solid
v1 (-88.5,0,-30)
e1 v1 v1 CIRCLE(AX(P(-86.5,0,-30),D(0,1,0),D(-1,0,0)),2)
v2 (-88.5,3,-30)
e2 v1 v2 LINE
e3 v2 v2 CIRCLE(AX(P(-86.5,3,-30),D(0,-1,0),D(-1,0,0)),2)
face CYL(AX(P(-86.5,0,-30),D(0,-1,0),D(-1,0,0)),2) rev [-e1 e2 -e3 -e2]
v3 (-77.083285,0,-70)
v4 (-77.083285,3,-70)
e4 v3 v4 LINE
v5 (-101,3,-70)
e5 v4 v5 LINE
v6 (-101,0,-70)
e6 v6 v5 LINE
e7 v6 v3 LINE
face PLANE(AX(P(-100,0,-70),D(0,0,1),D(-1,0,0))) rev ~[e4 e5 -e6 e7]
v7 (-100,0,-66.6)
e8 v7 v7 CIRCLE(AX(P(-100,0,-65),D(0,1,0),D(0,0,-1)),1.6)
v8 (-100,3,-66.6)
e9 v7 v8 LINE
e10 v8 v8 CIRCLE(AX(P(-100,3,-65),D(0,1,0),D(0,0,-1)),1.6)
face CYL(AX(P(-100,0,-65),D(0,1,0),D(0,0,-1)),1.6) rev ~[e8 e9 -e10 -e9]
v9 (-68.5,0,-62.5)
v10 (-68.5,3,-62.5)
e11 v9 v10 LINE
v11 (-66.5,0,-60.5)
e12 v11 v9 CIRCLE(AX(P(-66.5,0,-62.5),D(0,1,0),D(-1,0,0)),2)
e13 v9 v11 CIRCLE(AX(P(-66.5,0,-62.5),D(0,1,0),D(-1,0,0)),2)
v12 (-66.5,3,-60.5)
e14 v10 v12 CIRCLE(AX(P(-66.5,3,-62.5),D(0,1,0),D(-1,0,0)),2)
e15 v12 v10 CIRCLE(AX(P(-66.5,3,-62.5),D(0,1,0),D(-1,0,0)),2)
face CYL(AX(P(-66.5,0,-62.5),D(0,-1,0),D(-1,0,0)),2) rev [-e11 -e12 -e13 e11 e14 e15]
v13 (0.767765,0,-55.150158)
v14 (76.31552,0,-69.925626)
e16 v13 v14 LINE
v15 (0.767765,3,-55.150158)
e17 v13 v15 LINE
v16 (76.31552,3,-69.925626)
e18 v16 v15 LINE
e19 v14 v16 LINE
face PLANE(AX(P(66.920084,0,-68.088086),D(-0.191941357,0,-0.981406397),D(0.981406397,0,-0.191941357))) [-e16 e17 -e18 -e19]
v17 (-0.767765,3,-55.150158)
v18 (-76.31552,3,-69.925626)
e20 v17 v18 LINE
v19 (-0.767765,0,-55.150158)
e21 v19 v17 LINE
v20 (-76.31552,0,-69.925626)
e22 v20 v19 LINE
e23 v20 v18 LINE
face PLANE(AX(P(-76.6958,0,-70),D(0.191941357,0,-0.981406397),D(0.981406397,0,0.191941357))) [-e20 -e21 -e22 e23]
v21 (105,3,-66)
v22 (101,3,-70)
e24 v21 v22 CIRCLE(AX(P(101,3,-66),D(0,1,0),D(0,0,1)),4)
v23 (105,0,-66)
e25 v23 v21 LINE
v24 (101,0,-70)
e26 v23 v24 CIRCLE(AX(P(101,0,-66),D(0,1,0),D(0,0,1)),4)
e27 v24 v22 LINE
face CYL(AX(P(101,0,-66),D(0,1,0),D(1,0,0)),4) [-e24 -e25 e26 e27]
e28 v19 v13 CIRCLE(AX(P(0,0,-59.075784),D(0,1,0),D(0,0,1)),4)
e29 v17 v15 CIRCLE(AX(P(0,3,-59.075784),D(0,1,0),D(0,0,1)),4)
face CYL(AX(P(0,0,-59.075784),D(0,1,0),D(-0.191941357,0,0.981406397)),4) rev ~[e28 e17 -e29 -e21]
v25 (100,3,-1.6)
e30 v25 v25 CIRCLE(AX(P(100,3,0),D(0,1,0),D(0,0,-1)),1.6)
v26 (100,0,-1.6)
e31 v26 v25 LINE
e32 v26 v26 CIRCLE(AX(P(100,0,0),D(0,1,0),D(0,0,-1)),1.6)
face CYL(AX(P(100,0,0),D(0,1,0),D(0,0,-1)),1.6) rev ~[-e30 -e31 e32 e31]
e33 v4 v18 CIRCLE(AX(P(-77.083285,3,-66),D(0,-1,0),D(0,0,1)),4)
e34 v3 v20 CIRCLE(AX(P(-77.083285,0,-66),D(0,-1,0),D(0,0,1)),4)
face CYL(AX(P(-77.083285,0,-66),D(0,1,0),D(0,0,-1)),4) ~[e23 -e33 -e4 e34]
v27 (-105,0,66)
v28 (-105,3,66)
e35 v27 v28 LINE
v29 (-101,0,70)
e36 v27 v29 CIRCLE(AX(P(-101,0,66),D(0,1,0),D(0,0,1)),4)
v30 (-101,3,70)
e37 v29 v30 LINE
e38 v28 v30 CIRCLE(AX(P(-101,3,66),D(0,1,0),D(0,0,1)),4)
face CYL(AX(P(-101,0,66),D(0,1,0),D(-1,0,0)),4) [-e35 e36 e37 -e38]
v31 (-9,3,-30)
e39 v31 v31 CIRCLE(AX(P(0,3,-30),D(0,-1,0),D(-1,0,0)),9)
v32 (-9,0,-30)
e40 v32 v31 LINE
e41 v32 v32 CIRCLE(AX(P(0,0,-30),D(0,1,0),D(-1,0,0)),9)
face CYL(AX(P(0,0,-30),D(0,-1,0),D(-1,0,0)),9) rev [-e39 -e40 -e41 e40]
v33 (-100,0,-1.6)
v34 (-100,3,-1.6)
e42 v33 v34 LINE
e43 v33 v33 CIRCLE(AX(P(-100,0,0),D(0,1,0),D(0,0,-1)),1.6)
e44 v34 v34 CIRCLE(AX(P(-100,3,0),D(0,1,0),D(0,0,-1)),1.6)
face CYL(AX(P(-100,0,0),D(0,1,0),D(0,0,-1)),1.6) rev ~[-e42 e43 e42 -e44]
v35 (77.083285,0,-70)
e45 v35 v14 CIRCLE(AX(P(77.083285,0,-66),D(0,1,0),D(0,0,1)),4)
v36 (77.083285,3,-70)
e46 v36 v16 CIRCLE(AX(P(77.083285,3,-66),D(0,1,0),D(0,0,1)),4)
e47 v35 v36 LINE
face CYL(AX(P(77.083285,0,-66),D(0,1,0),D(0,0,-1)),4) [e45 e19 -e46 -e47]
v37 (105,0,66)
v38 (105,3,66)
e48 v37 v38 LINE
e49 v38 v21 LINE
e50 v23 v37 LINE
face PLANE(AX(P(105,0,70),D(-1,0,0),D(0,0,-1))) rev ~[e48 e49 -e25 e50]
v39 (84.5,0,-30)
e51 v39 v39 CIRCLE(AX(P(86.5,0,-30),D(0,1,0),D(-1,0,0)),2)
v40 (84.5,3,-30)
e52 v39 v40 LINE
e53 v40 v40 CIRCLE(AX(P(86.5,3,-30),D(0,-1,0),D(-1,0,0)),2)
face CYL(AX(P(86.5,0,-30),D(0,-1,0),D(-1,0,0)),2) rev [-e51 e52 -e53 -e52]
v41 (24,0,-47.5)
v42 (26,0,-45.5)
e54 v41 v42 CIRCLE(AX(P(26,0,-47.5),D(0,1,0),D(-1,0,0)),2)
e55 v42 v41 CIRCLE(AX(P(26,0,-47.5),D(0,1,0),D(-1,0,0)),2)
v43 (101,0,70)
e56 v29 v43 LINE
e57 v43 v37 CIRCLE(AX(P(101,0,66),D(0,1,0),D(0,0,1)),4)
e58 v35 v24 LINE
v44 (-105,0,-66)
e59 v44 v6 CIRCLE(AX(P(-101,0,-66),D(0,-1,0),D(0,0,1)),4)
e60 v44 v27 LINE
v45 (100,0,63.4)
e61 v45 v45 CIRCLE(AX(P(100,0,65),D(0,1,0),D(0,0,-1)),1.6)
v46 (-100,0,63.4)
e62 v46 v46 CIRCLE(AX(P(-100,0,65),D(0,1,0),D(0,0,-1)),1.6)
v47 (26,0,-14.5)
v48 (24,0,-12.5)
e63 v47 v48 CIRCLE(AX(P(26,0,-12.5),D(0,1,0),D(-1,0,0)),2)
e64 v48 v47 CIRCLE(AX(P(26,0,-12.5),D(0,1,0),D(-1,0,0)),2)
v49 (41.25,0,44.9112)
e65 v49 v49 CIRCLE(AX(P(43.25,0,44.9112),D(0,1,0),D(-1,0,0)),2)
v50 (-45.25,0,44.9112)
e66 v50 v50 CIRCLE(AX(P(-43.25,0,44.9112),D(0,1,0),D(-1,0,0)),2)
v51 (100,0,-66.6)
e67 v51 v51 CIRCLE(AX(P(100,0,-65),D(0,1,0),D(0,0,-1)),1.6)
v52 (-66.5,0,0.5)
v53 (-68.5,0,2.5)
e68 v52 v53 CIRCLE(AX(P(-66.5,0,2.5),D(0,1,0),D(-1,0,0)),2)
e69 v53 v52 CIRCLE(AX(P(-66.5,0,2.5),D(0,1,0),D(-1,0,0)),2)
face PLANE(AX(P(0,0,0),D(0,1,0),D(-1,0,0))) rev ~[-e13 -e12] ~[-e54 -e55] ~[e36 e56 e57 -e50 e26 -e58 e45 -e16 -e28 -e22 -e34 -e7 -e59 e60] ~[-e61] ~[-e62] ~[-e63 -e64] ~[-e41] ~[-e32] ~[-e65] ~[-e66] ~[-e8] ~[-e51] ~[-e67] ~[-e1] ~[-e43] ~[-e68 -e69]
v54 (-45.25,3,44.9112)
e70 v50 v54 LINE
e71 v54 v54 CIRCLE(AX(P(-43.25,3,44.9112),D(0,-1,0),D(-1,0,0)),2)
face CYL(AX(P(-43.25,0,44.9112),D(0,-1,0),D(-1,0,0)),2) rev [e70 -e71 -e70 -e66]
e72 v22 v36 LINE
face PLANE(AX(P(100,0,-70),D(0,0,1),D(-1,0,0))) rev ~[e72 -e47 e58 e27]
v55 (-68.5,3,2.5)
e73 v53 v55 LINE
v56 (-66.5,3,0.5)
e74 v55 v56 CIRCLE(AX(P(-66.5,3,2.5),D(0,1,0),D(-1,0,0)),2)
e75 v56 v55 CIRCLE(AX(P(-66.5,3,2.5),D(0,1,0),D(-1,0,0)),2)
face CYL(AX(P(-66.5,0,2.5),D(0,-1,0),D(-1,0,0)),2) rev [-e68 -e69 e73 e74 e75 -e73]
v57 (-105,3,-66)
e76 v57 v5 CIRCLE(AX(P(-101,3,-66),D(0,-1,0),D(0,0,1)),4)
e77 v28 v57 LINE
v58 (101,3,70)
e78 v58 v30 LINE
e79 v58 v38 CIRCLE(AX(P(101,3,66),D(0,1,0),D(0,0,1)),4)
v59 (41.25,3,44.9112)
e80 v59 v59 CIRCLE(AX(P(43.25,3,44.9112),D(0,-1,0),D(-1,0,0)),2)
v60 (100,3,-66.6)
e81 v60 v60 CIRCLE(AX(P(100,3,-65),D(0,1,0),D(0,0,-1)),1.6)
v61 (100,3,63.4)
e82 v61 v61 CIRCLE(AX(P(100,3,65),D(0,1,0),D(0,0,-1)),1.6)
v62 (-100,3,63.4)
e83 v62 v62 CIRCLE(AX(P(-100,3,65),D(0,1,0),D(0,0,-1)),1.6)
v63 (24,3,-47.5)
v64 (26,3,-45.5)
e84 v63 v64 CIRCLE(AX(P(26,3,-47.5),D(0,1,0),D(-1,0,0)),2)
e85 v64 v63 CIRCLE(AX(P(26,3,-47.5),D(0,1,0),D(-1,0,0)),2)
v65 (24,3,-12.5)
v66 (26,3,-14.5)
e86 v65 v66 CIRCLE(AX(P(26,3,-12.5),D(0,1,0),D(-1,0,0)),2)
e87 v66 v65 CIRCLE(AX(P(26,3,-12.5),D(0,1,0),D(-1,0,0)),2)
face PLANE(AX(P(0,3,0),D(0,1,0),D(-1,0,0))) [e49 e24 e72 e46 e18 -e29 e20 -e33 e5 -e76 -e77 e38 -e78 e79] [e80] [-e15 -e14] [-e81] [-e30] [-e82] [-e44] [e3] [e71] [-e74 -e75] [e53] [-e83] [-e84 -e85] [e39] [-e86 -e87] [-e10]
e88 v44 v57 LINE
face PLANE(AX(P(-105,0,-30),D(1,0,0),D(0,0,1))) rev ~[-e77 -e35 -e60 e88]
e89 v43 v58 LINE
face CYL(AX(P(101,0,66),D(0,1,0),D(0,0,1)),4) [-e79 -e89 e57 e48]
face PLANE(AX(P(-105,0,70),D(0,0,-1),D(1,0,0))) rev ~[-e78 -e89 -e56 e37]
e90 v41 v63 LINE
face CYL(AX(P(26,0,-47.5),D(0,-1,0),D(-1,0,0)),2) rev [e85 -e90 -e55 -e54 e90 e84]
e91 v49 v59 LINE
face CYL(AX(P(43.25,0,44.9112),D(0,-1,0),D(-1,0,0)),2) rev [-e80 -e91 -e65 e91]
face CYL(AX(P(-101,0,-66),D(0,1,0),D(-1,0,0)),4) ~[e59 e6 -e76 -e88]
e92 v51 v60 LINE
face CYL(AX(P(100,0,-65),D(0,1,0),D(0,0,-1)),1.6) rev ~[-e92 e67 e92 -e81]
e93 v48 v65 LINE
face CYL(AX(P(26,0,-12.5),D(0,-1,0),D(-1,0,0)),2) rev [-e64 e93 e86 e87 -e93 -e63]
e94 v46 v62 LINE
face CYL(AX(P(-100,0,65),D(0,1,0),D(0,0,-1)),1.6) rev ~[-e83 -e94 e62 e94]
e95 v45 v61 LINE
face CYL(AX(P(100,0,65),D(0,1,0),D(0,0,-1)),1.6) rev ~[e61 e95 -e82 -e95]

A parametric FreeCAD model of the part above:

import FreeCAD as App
import Part
import Sketcher

V = App.Vector


def edges_at(feature, points):
    """Names of the edges that pass closest to the given points."""
    edges = feature.Shape.Edges
    near = lambda p: min(range(len(edges)), key=lambda i: edges[i].distToShape(Part.Vertex(*p))[0])
    return sorted({f"Edge{near(p) + 1}" for p in points})

doc = App.newDocument("Part")
body = doc.addObject("PartDesign::Body", "Body")

sketch1 = body.newObject("Sketcher::SketchObject", "Sketch")
sketch1.AttachmentSupport = (doc.getObject("XZ_Plane"), [""])
sketch1.MapMode = "FlatFace"
sketch1.addGeometry(Part.LineSegment(V(-105, 70, 0), V(105, 70, 0)), False)
sketch1.addGeometry(Part.LineSegment(V(105, 70, 0), V(105, -70, 0)), False)
sketch1.addGeometry(Part.LineSegment(V(105, -70, 0), V(76.7, -70, 0)), False)
sketch1.addGeometry(Part.LineSegment(V(76.7, -70, 0), V(0, -55, 0)), False)
sketch1.addGeometry(Part.LineSegment(V(0, -55, 0), V(-76.7, -70, 0)), False)
sketch1.addGeometry(Part.LineSegment(V(-76.7, -70, 0), V(-105, -70, 0)), False)
sketch1.addGeometry(Part.LineSegment(V(-105, -70, 0), V(-105, 70, 0)), False)
sketch1.addGeometry(Part.Circle(V(-86.5, -30, 0), V(0, 0, 1), 2), False)
sketch1.addGeometry(Part.Circle(V(-43.2, 44.9, 0), V(0, 0, 1), 2), False)
sketch1.addGeometry(Part.Circle(V(43.2, 44.9, 0), V(0, 0, 1), 2), False)
sketch1.addGeometry(Part.Circle(V(86.5, -30, 0), V(0, 0, 1), 2), False)
sketch1.addGeometry(Part.Circle(V(0, -30, 0), V(0, 0, 1), 9), False)
sketch1.addGeometry(Part.Circle(V(26, -12.5, 0), V(0, 0, 1), 2), False)
sketch1.addGeometry(Part.Circle(V(-66.5, 2.5, 0), V(0, 0, 1), 2), False)
sketch1.addGeometry(Part.Circle(V(26, -47.5, 0), V(0, 0, 1), 2), False)
sketch1.addGeometry(Part.Circle(V(-66.5, -62.5, 0), V(0, 0, 1), 2), False)
sketch1.addConstraint(Sketcher.Constraint("Coincident", 0, 2, 1, 1))
sketch1.addConstraint(Sketcher.Constraint("Coincident", 1, 2, 2, 1))
sketch1.addConstraint(Sketcher.Constraint("Coincident", 2, 2, 3, 1))
sketch1.addConstraint(Sketcher.Constraint("Coincident", 3, 2, 4, 1))
sketch1.addConstraint(Sketcher.Constraint("Coincident", 4, 2, 5, 1))
sketch1.addConstraint(Sketcher.Constraint("Coincident", 5, 2, 6, 1))
sketch1.addConstraint(Sketcher.Constraint("Coincident", 6, 2, 0, 1))
sketch1.addConstraint(Sketcher.Constraint("Horizontal", 0))
sketch1.addConstraint(Sketcher.Constraint("Vertical", 1))
sketch1.addConstraint(Sketcher.Constraint("Horizontal", 2))
sketch1.addConstraint(Sketcher.Constraint("Horizontal", 5))
sketch1.addConstraint(Sketcher.Constraint("Vertical", 6))
sketch1.addConstraint(Sketcher.Constraint("Equal", 7, 8))
sketch1.addConstraint(Sketcher.Constraint("Equal", 8, 9))
sketch1.addConstraint(Sketcher.Constraint("Equal", 9, 10))
sketch1.addConstraint(Sketcher.Constraint("Equal", 10, 12))
sketch1.addConstraint(Sketcher.Constraint("Equal", 12, 13))
sketch1.addConstraint(Sketcher.Constraint("Equal", 13, 14))
sketch1.addConstraint(Sketcher.Constraint("Equal", 14, 15))
sketch1.addConstraint(Sketcher.Constraint("Symmetric", 0, 2, 5, 2, -1, 1))
sketch1.addConstraint(Sketcher.Constraint("Symmetric", 8, 3, 9, 3, -2))
sketch1.addConstraint(Sketcher.Constraint("Symmetric", 7, 3, 10, 3, -2))
sketch1.addConstraint(Sketcher.Constraint("Symmetric", 2, 2, 4, 2, -2))
sketch1.addConstraint(Sketcher.Constraint("PointOnObject", 11, 3, -2))
sketch1.addConstraint(Sketcher.Constraint("PointOnObject", 3, 2, -2))
sketch1.addConstraint(Sketcher.Constraint("Horizontal", 10, 3, 11, 3))
sketch1.addConstraint(Sketcher.Constraint("Vertical", 12, 3, 14, 3))
sketch1.addConstraint(Sketcher.Constraint("Vertical", 13, 3, 15, 3))
sketch1.addConstraint(Sketcher.Constraint("Diameter", 7, 4.0))
sketch1.addConstraint(Sketcher.Constraint("Diameter", 11, 18.0))
sketch1.addConstraint(Sketcher.Constraint("DistanceX", 0, 1, 0, 2, 210.0))
sketch1.addConstraint(Sketcher.Constraint("DistanceY", 1, 2, 1, 1, 140.0))
sketch1.addConstraint(Sketcher.Constraint("DistanceX", 7, 3, 10, 3, 173.0))
sketch1.addConstraint(Sketcher.Constraint("DistanceY", 12, 3, 13, 3, 15.0))
sketch1.addConstraint(Sketcher.Constraint("DistanceY", 14, 3, 12, 3, 35.0))
sketch1.addConstraint(Sketcher.Constraint("DistanceY", 15, 3, 14, 3, 15.0))
sketch1.addConstraint(Sketcher.Constraint("DistanceY", 10, 3, 0, 2, 100.0))
sketch1.addConstraint(Sketcher.Constraint("DistanceY", 3, 2, 11, 3, 25.0))
sketch1.addConstraint(Sketcher.Constraint("DistanceY", 11, 3, 12, 3, 17.5))
sketch1.addConstraint(Sketcher.Constraint("DistanceX", -1, 1, 12, 3, 26.0))
sketch1.addConstraint(Sketcher.Constraint("DistanceX", 7, 3, 13, 3, 20.0))
sketch1.addConstraint(Sketcher.Constraint("DistanceX", 8, 3, 9, 3, 86.5))
sketch1.addConstraint(Sketcher.Constraint("DistanceX", 2, 2, 2, 1, 28.3042))
sketch1.addConstraint(Sketcher.Constraint("DistanceY", -1, 1, 8, 3, 44.9112))
pad1 = body.newObject("PartDesign::Pad", "Pad")
pad1.Profile = sketch1
pad1.Length = 3
pad1.Reversed = True
doc.recompute()

fillet = body.newObject("PartDesign::Fillet", "Fillet")
fillet.Base = (pad1, edges_at(pad1, [
    (-105, 1.5, 70),
    (-105, 1.5, -70),
    (-76.696, 1.5, -70),
    (0, 1.5, -55),
    (76.696, 1.5, -70),
    (105, 1.5, -70),
    (105, 1.5, 70),
]))
fillet.Radius = 4

sketch2 = body.newObject("Sketcher::SketchObject", "Sketch001")
sketch2.AttachmentSupport = (doc.getObject("XZ_Plane"), [""])
sketch2.MapMode = "FlatFace"
sketch2.addGeometry(Part.Circle(V(-100, 65, 0), V(0, 0, 1), 1.6), False)
sketch2.addGeometry(Part.Circle(V(-100, 0, 0), V(0, 0, 1), 1.6), False)
sketch2.addGeometry(Part.Circle(V(-100, -65, 0), V(0, 0, 1), 1.6), False)
sketch2.addGeometry(Part.Circle(V(100, -65, 0), V(0, 0, 1), 1.6), False)
sketch2.addGeometry(Part.Circle(V(100, 0, 0), V(0, 0, 1), 1.6), False)
sketch2.addGeometry(Part.Circle(V(100, 65, 0), V(0, 0, 1), 1.6), False)
sketch2.addConstraint(Sketcher.Constraint("Equal", 0, 1))
sketch2.addConstraint(Sketcher.Constraint("Equal", 1, 2))
sketch2.addConstraint(Sketcher.Constraint("Equal", 2, 3))
sketch2.addConstraint(Sketcher.Constraint("Equal", 3, 4))
sketch2.addConstraint(Sketcher.Constraint("Equal", 4, 5))
sketch2.addConstraint(Sketcher.Constraint("Symmetric", 0, 3, 3, 3, -1, 1))
sketch2.addConstraint(Sketcher.Constraint("Symmetric", 1, 3, 4, 3, -1, 1))
sketch2.addConstraint(Sketcher.Constraint("Symmetric", 2, 3, 5, 3, -1, 1))
sketch2.addConstraint(Sketcher.Constraint("Symmetric", 2, 3, 3, 3, -2))
sketch2.addConstraint(Sketcher.Constraint("PointOnObject", 1, 3, -1))
sketch2.addConstraint(Sketcher.Constraint("Vertical", 0, 3, 1, 3))
sketch2.addConstraint(Sketcher.Constraint("Diameter", 0, 3.2))
sketch2.addConstraint(Sketcher.Constraint("DistanceX", 0, 3, -1, 1, 100.0))
sketch2.addConstraint(Sketcher.Constraint("DistanceY", -1, 1, 0, 3, 65.0))
doc.recompute()
hole = body.newObject("PartDesign::Hole", "Hole")
hole.Profile = sketch2
hole.ThreadType = "None"
hole.Diameter = 3.2
hole.DepthType = "ThroughAll"

doc.recompute()
